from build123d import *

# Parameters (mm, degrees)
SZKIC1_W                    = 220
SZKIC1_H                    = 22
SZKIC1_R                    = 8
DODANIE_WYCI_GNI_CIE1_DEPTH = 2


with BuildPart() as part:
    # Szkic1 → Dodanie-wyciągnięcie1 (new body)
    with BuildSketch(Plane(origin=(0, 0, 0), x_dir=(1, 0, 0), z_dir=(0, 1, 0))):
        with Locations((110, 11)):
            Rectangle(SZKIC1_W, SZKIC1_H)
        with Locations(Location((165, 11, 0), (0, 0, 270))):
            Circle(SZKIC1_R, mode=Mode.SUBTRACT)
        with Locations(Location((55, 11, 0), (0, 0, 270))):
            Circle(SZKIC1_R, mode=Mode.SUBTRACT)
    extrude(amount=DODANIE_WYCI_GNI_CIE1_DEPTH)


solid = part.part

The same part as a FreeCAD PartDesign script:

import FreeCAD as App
import Part
import Sketcher

V = App.Vector

doc = App.newDocument("Part")
body = doc.addObject("PartDesign::Body", "Body")

sketch1 = body.newObject("Sketcher::SketchObject", "Sketch")
sketch1.AttachmentSupport = (doc.getObject("XZ_Plane"), [""])
sketch1.MapMode = "FlatFace"
sketch1.addGeometry(Part.LineSegment(V(0, -22, 0), V(0, 0, 0)), False)
sketch1.addGeometry(Part.LineSegment(V(0, 0, 0), V(220, 0, 0)), False)
sketch1.addGeometry(Part.LineSegment(V(220, 0, 0), V(220, -22, 0)), False)
sketch1.addGeometry(Part.LineSegment(V(220, -22, 0), V(0, -22, 0)), False)
sketch1.addGeometry(Part.Circle(V(55, -11, 0), V(0, 0, 1), 8), False)
sketch1.addGeometry(Part.Circle(V(165, -11, 0), V(0, 0, 1), 8), False)
sketch1.addConstraint(Sketcher.Constraint("Coincident", 0, 2, 1, 1))
sketch1.addConstraint(Sketcher.Constraint("Coincident", 1, 2, 2, 1))
sketch1.addConstraint(Sketcher.Constraint("Coincident", 2, 2, 3, 1))
sketch1.addConstraint(Sketcher.Constraint("Coincident", 3, 2, 0, 1))
sketch1.addConstraint(Sketcher.Constraint("Vertical", 0))
sketch1.addConstraint(Sketcher.Constraint("Horizontal", 1))
sketch1.addConstraint(Sketcher.Constraint("Vertical", 2))
sketch1.addConstraint(Sketcher.Constraint("Horizontal", 3))
sketch1.addConstraint(Sketcher.Constraint("Coincident", 0, 2, -1, 1))
sketch1.addConstraint(Sketcher.Constraint("Equal", 4, 5))
sketch1.addConstraint(Sketcher.Constraint("Horizontal", 4, 3, 5, 3))
sketch1.addConstraint(Sketcher.Constraint("Diameter", 4, 16.0))
sketch1.addConstraint(Sketcher.Constraint("DistanceX", 1, 1, 1, 2, 220.0))
sketch1.addConstraint(Sketcher.Constraint("DistanceY", 0, 1, 0, 2, 22.0))
sketch1.addConstraint(Sketcher.Constraint("DistanceX", -1, 1, 4, 3, 55.0))
sketch1.addConstraint(Sketcher.Constraint("DistanceY", 4, 3, -1, 1, 11.0))
sketch1.addConstraint(Sketcher.Constraint("DistanceX", -1, 1, 5, 3, 165.0))
pad1 = body.newObject("PartDesign::Pad", "Pad")
pad1.Profile = sketch1
pad1.Length = 2
pad1.Reversed = True

doc.recompute()
